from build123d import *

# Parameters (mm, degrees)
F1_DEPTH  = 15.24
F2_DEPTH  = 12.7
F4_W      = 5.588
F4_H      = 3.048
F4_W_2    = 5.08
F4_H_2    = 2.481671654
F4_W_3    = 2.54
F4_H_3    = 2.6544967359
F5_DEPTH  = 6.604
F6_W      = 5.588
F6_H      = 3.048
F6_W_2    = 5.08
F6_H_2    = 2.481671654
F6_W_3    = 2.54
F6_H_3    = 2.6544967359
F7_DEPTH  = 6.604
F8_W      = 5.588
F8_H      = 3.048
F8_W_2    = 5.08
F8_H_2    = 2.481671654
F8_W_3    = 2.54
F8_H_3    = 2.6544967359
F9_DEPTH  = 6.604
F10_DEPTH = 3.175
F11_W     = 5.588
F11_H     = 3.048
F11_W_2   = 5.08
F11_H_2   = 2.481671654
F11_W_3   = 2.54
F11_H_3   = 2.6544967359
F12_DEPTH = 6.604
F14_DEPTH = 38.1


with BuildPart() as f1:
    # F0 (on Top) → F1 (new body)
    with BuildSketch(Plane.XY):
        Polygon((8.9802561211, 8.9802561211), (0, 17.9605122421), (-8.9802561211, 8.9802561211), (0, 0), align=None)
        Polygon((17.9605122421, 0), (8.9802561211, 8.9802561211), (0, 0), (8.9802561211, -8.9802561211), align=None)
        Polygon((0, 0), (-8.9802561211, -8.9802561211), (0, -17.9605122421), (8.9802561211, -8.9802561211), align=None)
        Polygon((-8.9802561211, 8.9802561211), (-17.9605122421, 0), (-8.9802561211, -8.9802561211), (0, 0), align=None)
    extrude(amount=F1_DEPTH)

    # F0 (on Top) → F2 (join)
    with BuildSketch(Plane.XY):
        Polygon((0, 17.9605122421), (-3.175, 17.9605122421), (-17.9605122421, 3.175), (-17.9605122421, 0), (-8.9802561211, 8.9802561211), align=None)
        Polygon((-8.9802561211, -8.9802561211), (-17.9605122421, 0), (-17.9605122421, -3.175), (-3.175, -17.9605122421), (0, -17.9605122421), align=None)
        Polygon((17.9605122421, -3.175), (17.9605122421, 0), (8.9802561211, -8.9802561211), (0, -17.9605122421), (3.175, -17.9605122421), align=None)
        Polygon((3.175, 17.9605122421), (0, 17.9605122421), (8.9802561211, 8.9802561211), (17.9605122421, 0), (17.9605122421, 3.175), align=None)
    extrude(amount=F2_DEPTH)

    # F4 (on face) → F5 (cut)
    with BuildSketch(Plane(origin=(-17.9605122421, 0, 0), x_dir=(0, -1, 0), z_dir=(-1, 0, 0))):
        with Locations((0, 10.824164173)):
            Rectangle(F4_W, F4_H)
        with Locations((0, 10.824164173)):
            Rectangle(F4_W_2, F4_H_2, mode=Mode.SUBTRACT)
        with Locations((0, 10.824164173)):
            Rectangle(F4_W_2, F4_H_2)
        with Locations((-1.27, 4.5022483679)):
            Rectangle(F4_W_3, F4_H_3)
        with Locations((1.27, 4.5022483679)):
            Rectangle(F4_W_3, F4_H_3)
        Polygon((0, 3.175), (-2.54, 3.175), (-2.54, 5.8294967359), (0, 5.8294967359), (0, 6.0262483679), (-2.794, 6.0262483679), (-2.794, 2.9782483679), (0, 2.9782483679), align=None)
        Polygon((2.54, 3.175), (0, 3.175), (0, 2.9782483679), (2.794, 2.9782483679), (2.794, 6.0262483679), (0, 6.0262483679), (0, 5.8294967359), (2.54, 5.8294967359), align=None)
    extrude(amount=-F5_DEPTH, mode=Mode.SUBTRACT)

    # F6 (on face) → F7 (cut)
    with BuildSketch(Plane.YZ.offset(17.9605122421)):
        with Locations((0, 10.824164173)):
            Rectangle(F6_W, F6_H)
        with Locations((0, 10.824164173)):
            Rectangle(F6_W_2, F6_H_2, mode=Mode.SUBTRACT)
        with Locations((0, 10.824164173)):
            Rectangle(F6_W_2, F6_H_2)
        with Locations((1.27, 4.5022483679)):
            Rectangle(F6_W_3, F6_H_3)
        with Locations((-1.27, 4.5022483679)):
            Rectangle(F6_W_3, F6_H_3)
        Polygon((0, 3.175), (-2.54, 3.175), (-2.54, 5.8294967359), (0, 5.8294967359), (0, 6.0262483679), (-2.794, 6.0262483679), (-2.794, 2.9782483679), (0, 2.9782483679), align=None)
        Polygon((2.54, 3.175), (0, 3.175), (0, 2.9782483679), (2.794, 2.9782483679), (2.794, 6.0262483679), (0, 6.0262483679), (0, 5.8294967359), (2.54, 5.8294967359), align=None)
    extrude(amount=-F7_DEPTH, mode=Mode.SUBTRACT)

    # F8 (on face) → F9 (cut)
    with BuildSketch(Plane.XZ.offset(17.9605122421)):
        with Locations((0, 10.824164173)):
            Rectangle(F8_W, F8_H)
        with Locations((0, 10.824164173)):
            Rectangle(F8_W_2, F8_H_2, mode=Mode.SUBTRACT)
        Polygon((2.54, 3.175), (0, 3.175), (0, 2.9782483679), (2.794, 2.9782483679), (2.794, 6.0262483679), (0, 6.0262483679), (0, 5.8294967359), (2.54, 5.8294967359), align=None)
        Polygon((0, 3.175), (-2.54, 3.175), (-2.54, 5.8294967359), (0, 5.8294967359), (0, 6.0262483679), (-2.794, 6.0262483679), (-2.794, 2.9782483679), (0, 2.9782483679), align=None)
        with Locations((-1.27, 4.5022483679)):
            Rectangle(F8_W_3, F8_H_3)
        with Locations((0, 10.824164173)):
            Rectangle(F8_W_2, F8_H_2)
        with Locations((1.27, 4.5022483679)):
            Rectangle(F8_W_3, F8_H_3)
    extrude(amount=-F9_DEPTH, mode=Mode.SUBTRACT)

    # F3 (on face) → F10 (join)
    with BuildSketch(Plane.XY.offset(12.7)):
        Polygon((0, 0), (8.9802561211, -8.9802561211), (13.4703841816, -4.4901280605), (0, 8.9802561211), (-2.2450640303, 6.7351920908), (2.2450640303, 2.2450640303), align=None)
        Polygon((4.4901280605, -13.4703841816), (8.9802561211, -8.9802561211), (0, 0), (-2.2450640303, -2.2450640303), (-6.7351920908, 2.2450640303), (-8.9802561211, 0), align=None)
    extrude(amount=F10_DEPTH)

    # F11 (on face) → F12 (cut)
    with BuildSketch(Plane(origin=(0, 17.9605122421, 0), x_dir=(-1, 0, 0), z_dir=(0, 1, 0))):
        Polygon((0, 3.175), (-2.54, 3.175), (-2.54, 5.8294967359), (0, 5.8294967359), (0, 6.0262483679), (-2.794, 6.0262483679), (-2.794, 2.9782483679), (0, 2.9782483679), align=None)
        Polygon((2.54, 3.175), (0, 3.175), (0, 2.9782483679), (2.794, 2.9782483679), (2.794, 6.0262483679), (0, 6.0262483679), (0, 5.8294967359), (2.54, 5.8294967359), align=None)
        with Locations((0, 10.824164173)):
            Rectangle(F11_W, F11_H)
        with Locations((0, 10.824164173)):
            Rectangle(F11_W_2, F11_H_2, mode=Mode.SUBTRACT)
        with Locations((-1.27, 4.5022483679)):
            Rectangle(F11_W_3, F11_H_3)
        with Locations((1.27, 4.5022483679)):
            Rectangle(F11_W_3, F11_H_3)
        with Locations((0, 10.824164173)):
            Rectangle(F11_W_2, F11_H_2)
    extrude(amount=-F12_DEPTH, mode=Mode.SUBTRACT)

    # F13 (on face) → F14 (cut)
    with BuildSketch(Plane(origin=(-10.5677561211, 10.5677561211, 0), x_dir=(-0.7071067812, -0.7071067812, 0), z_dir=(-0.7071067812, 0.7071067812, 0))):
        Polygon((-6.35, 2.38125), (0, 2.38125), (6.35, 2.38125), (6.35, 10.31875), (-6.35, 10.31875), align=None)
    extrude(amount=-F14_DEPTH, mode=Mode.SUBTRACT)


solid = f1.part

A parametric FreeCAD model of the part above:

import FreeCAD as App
import Part
import Sketcher

V = App.Vector
Q = App.Units.Quantity

doc = App.newDocument("Part")
params = doc.addObject("Spreadsheet::Sheet", "Params")
for row, (alias, value) in enumerate([
    ("sketch1_length", "0.5 in"),
    ("pad1_length", "0.6 in"),
    ("sketch2_length", "0.5 in"),
    ("sketch2_width", "0.125 in"),
    ("pad2_length", "0.5 in"),
    ("sketch3_width", "0.22 in"),
    ("sketch3_height", "0.12 in"),
    ("pocket1_length", "0.26 in"),
    ("sketch4_width", "0.22 in"),
    ("sketch4_height", "0.12 in"),
    ("pocket2_length", "0.26 in"),
    ("sketch5_width", "0.22 in"),
    ("sketch5_height", "0.12 in"),
    ("pocket3_length", "0.26 in"),
    ("sketch6_length", "0.25 in"),
    ("sketch6_length2", "0.75 in"),
    ("pad3_length", "0.125 in"),
    ("sketch7_width", "0.22 in"),
    ("sketch7_height", "0.12 in"),
    ("pocket4_length", "0.26 in"),
    ("sketch8_width", "0.5 in"),
    ("sketch8_height", "0.3125 in"),
    ("pocket5_length", "1.5 in"),
], start=1):
    params.set(f"A{row}", alias)
    params.set(f"B{row}", "=" + value)
    params.setAlias(f"B{row}", alias)

body = doc.addObject("PartDesign::Body", "Body")

sketch1 = doc.addObject("Sketcher::SketchObject", "Sketch")
body.addObject(sketch1)
sketch1.AttachmentSupport = (doc.XY_Plane, [""])
sketch1.MapMode = "FlatFace"
sketch1.addGeometry([
    Part.LineSegment(V(9, 9, 0), V(0, 18, 0)),
    Part.LineSegment(V(0, 18, 0), V(-9, 9, 0)),
    Part.LineSegment(V(-9, 9, 0), V(-18, 0, 0)),
    Part.LineSegment(V(-18, 0, 0), V(-9, -9, 0)),
    Part.LineSegment(V(-9, -9, 0), V(0, -18, 0)),
    Part.LineSegment(V(0, -18, 0), V(9, -9, 0)),
    Part.LineSegment(V(9, -9, 0), V(18, 0, 0)),
    Part.LineSegment(V(18, 0, 0), V(9, 9, 0)),
], False)
sketch1.addConstraint([
    Sketcher.Constraint("Coincident", 0, 2, 1, 1),
    Sketcher.Constraint("Coincident", 1, 2, 2, 1),
    Sketcher.Constraint("Coincident", 2, 2, 3, 1),
    Sketcher.Constraint("Coincident", 3, 2, 4, 1),
    Sketcher.Constraint("Coincident", 4, 2, 5, 1),
    Sketcher.Constraint("Coincident", 5, 2, 6, 1),
    Sketcher.Constraint("Coincident", 6, 2, 7, 1),
    Sketcher.Constraint("Coincident", 7, 2, 0, 1),
    Sketcher.Constraint("Symmetric", 0, 2, 4, 2, -1, 1),
    Sketcher.Constraint("Symmetric", 1, 2, 5, 2, -1, 1),
    Sketcher.Constraint("Symmetric", 2, 2, 6, 2, -1, 1),
    Sketcher.Constraint("Symmetric", 3, 2, 7, 2, -1, 1),
    Sketcher.Constraint("Symmetric", 3, 2, 5, 2, -2),
    Sketcher.Constraint("PointOnObject", 0, 2, -2),
    Sketcher.Constraint("PointOnObject", 2, 2, -1),
    Sketcher.Constraint("Perpendicular", 0, 1),
    Sketcher.Constraint("Parallel", 1, 2),
    Sketcher.Constraint("Equal", 1, 2),
    Sketcher.Constraint("Distance", 0, Q("0.5 in")),
])
sketch1.setExpression("Constraints[18]", "Params.sketch1_length")
pad1 = doc.addObject("PartDesign::Pad", "Pad")
body.addObject(pad1)
pad1.Profile = sketch1
pad1.setExpression("Length", "Params.pad1_length")

sketch2 = doc.addObject("Sketcher::SketchObject", "Sketch001")
body.addObject(sketch2)
sketch2.AttachmentSupport = (doc.XY_Plane, [""])
sketch2.MapMode = "FlatFace"
sketch2.addGeometry([
    Part.LineSegment(V(0, 18, 0), V(-3.2, 18, 0)),
    Part.LineSegment(V(-3.2, 18, 0), V(-18, 3.2, 0)),
    Part.LineSegment(V(-18, 3.2, 0), V(-18, 0, 0)),
    Part.LineSegment(V(-18, 0, 0), V(-9, 9, 0)),
    Part.LineSegment(V(-9, 9, 0), V(0, 18, 0)),
    Part.LineSegment(V(-9, -9, 0), V(-18, 0, 0)),
    Part.LineSegment(V(-18, 0, 0), V(-18, -3.2, 0)),
    Part.LineSegment(V(-18, -3.2, 0), V(-3.2, -18, 0)),
    Part.LineSegment(V(-3.2, -18, 0), V(0, -18, 0)),
    Part.LineSegment(V(0, -18, 0), V(-9, -9, 0)),
    Part.LineSegment(V(18, -3.2, 0), V(18, 0, 0)),
    Part.LineSegment(V(18, 0, 0), V(9, -9, 0)),
    Part.LineSegment(V(9, -9, 0), V(0, -18, 0)),
    Part.LineSegment(V(0, -18, 0), V(3.2, -18, 0)),
    Part.LineSegment(V(3.2, -18, 0), V(18, -3.2, 0)),
    Part.LineSegment(V(3.2, 18, 0), V(0, 18, 0)),
    Part.LineSegment(V(0, 18, 0), V(9, 9, 0)),
    Part.LineSegment(V(9, 9, 0), V(18, 0, 0)),
    Part.LineSegment(V(18, 0, 0), V(18, 3.2, 0)),
    Part.LineSegment(V(18, 3.2, 0), V(3.2, 18, 0)),
], False)
sketch2.addConstraint([
    Sketcher.Constraint("Coincident", 0, 2, 1, 1),
    Sketcher.Constraint("Coincident", 1, 2, 2, 1),
    Sketcher.Constraint("Coincident", 2, 2, 3, 1),
    Sketcher.Constraint("Coincident", 3, 2, 4, 1),
    Sketcher.Constraint("Coincident", 4, 2, 0, 1),
    Sketcher.Constraint("Coincident", 5, 2, 6, 1),
    Sketcher.Constraint("Coincident", 6, 2, 7, 1),
    Sketcher.Constraint("Coincident", 7, 2, 8, 1),
    Sketcher.Constraint("Coincident", 8, 2, 9, 1),
    Sketcher.Constraint("Coincident", 9, 2, 5, 1),
    Sketcher.Constraint("Coincident", 10, 2, 11, 1),
    Sketcher.Constraint("Coincident", 11, 2, 12, 1),
    Sketcher.Constraint("Coincident", 12, 2, 13, 1),
    Sketcher.Constraint("Coincident", 13, 2, 14, 1),
    Sketcher.Constraint("Coincident", 14, 2, 10, 1),
    Sketcher.Constraint("Coincident", 15, 2, 16, 1),
    Sketcher.Constraint("Coincident", 16, 2, 17, 1),
    Sketcher.Constraint("Coincident", 17, 2, 18, 1),
    Sketcher.Constraint("Coincident", 18, 2, 19, 1),
    Sketcher.Constraint("Coincident", 19, 2, 15, 1),
    Sketcher.Constraint("Horizontal", 0),
    Sketcher.Constraint("Vertical", 2),
    Sketcher.Constraint("Vertical", 6),
    Sketcher.Constraint("Horizontal", 8),
    Sketcher.Constraint("Vertical", 10),
    Sketcher.Constraint("Horizontal", 13),
    Sketcher.Constraint("Horizontal", 15),
    Sketcher.Constraint("Vertical", 18),
    Sketcher.Constraint("Coincident", 5, 2, 2, 2),
    Sketcher.Constraint("Coincident", 12, 2, 8, 2),
    Sketcher.Constraint("Coincident", 15, 2, 4, 2),
    Sketcher.Constraint("Coincident", 17, 2, 10, 2),
    Sketcher.Constraint("Symmetric", 4, 2, 8, 2, -1, 1),
    Sketcher.Constraint("Symmetric", 2, 2, 10, 2, -1, 1),
    Sketcher.Constraint("Symmetric", 3, 2, 11, 2, -1, 1),
    Sketcher.Constraint("Symmetric", 9, 2, 16, 2, -1, 1),
    Sketcher.Constraint("Symmetric", 9, 2, 11, 2, -2),
    Sketcher.Constraint("PointOnObject", 2, 2, -1),
    Sketcher.Constraint("PointOnObject", 4, 2, -2),
    Sketcher.Constraint("Parallel", 1, 3),
    Sketcher.Constraint("Parallel", 3, 4),
    Sketcher.Constraint("Perpendicular", 4, 5),
    Sketcher.Constraint("Parallel", 5, 7),
    Sketcher.Constraint("Parallel", 12, 14),
    Sketcher.Constraint("Parallel", 17, 19),
    Sketcher.Constraint("Horizontal", 6, 2, 14, 2),
    Sketcher.Constraint("Horizontal", 1, 2, 18, 2),
    Sketcher.Constraint("Vertical", 0, 2, 7, 2),
    Sketcher.Constraint("Equal", 3, 4),
    Sketcher.Constraint("Distance", 3, Q("0.5 in")),
    Sketcher.Constraint("DistanceX", 0, 2, 0, 1, Q("0.125 in")),
])
sketch2.setExpression("Constraints[49]", "Params.sketch2_length")
sketch2.setExpression("Constraints[50]", "Params.sketch2_width")
pad2 = doc.addObject("PartDesign::Pad", "Pad001")
body.addObject(pad2)
pad2.Profile = sketch2
pad2.setExpression("Length", "Params.pad2_length")

sketch3 = doc.addObject("Sketcher::SketchObject", "Sketch002")
body.addObject(sketch3)
sketch3.AttachmentSupport = (doc.YZ_Plane, [""])
sketch3.MapMode = "FlatFace"
sketch3.AttachmentOffset = App.Placement(V(0, 0, -17.960512), App.Rotation())
sketch3.addGeometry([
    Part.LineSegment(V(2.8, 12.3, 0), V(2.8, 9.3, 0)),
    Part.LineSegment(V(2.8, 9.3, 0), V(-2.8, 9.3, 0)),
    Part.LineSegment(V(-2.8, 9.3, 0), V(-2.8, 12.3, 0)),
    Part.LineSegment(V(-2.8, 12.3, 0), V(2.8, 12.3, 0)),
    Part.LineSegment(V(2.8, 6, 0), V(2.8, 3, 0)),
    Part.LineSegment(V(2.8, 3, 0), V(-2.8, 3, 0)),
    Part.LineSegment(V(-2.8, 3, 0), V(-2.8, 6, 0)),
    Part.LineSegment(V(-2.8, 6, 0), V(2.8, 6, 0)),
], False)
sketch3.addConstraint([
    Sketcher.Constraint("Coincident", 0, 2, 1, 1),
    Sketcher.Constraint("Coincident", 1, 2, 2, 1),
    Sketcher.Constraint("Coincident", 2, 2, 3, 1),
    Sketcher.Constraint("Coincident", 3, 2, 0, 1),
    Sketcher.Constraint("Coincident", 4, 2, 5, 1),
    Sketcher.Constraint("Coincident", 5, 2, 6, 1),
    Sketcher.Constraint("Coincident", 6, 2, 7, 1),
    Sketcher.Constraint("Coincident", 7, 2, 4, 1),
    Sketcher.Constraint("Vertical", 0),
    Sketcher.Constraint("Horizontal", 1),
    Sketcher.Constraint("Vertical", 2),
    Sketcher.Constraint("Horizontal", 3),
    Sketcher.Constraint("Vertical", 4),
    Sketcher.Constraint("Horizontal", 5),
    Sketcher.Constraint("Vertical", 6),
    Sketcher.Constraint("Horizontal", 7),
    Sketcher.Constraint("Vertical", 3, 2, 4, 2),
    Sketcher.Constraint("Vertical", 2, 2, 5, 2),
    Sketcher.Constraint("Equal", 2, 4),
    Sketcher.Constraint("DistanceX", 1, 2, 1, 1, Q("0.22 in")),
    Sketcher.Constraint("DistanceY", 0, 2, 0, 1, Q("0.12 in")),
    Sketcher.Constraint("DistanceX", -1, 1, 0, 2, Q("0.11 in")),
    Sketcher.Constraint("DistanceY", -1, 1, 4, 2, Q("2.978248 mm")),
    Sketcher.Constraint("DistanceY", -1, 1, 0, 2, Q("9.300164 mm")),
])
sketch3.setExpression("Constraints[19]", "Params.sketch3_width")
sketch3.setExpression("Constraints[20]", "Params.sketch3_height")
pocket1 = doc.addObject("PartDesign::Pocket", "Pocket")
body.addObject(pocket1)
pocket1.Profile = sketch3
pocket1.setExpression("Length", "Params.pocket1_length")
pocket1.Reversed = True

sketch4 = doc.addObject("Sketcher::SketchObject", "Sketch003")
body.addObject(sketch4)
sketch4.AttachmentSupport = (doc.YZ_Plane, [""])
sketch4.MapMode = "FlatFace"
sketch4.AttachmentOffset = App.Placement(V(0, 0, 17.960512), App.Rotation())
sketch4.addGeometry([
    Part.LineSegment(V(-2.8, 12.3, 0), V(-2.8, 9.3, 0)),
    Part.LineSegment(V(-2.8, 9.3, 0), V(2.8, 9.3, 0)),
    Part.LineSegment(V(2.8, 9.3, 0), V(2.8, 12.3, 0)),
    Part.LineSegment(V(2.8, 12.3, 0), V(-2.8, 12.3, 0)),
    Part.LineSegment(V(-2.8, 6, 0), V(-2.8, 3, 0)),
    Part.LineSegment(V(-2.8, 3, 0), V(2.8, 3, 0)),
    Part.LineSegment(V(2.8, 3, 0), V(2.8, 6, 0)),
    Part.LineSegment(V(2.8, 6, 0), V(-2.8, 6, 0)),
], False)
sketch4.addConstraint([
    Sketcher.Constraint("Coincident", 0, 2, 1, 1),
    Sketcher.Constraint("Coincident", 1, 2, 2, 1),
    Sketcher.Constraint("Coincident", 2, 2, 3, 1),
    Sketcher.Constraint("Coincident", 3, 2, 0, 1),
    Sketcher.Constraint("Coincident", 4, 2, 5, 1),
    Sketcher.Constraint("Coincident", 5, 2, 6, 1),
    Sketcher.Constraint("Coincident", 6, 2, 7, 1),
    Sketcher.Constraint("Coincident", 7, 2, 4, 1),
    Sketcher.Constraint("Vertical", 0),
    Sketcher.Constraint("Horizontal", 1),
    Sketcher.Constraint("Vertical", 2),
    Sketcher.Constraint("Horizontal", 3),
    Sketcher.Constraint("Vertical", 4),
    Sketcher.Constraint("Horizontal", 5),
    Sketcher.Constraint("Vertical", 6),
    Sketcher.Constraint("Horizontal", 7),
    Sketcher.Constraint("Vertical", 3, 2, 4, 2),
    Sketcher.Constraint("Vertical", 2, 2, 5, 2),
    Sketcher.Constraint("Equal", 2, 4),
    Sketcher.Constraint("DistanceX", 1, 1, 1, 2, Q("0.22 in")),
    Sketcher.Constraint("DistanceY", 0, 2, 0, 1, Q("0.12 in")),
    Sketcher.Constraint("DistanceX", 0, 2, -1, 1, Q("0.11 in")),
    Sketcher.Constraint("DistanceY", -1, 1, 4, 2, Q("2.978248 mm")),
    Sketcher.Constraint("DistanceY", -1, 1, 0, 2, Q("9.300164 mm")),
])
sketch4.setExpression("Constraints[19]", "Params.sketch4_width")
sketch4.setExpression("Constraints[20]", "Params.sketch4_height")
pocket2 = doc.addObject("PartDesign::Pocket", "Pocket001")
body.addObject(pocket2)
pocket2.Profile = sketch4
pocket2.setExpression("Length", "Params.pocket2_length")

sketch5 = doc.addObject("Sketcher::SketchObject", "Sketch004")
body.addObject(sketch5)
sketch5.AttachmentSupport = (doc.XZ_Plane, [""])
sketch5.MapMode = "FlatFace"
sketch5.AttachmentOffset = App.Placement(V(0, 0, 17.960512), App.Rotation())
sketch5.addGeometry([
    Part.LineSegment(V(-2.8, 12.3, 0), V(-2.8, 9.3, 0)),
    Part.LineSegment(V(-2.8, 9.3, 0), V(2.8, 9.3, 0)),
    Part.LineSegment(V(2.8, 9.3, 0), V(2.8, 12.3, 0)),
    Part.LineSegment(V(2.8, 12.3, 0), V(-2.8, 12.3, 0)),
    Part.LineSegment(V(2.8, 3, 0), V(2.8, 6, 0)),
    Part.LineSegment(V(2.8, 6, 0), V(-2.8, 6, 0)),
    Part.LineSegment(V(-2.8, 6, 0), V(-2.8, 3, 0)),
    Part.LineSegment(V(-2.8, 3, 0), V(2.8, 3, 0)),
], False)
sketch5.addConstraint([
    Sketcher.Constraint("Coincident", 0, 2, 1, 1),
    Sketcher.Constraint("Coincident", 1, 2, 2, 1),
    Sketcher.Constraint("Coincident", 2, 2, 3, 1),
    Sketcher.Constraint("Coincident", 3, 2, 0, 1),
    Sketcher.Constraint("Coincident", 4, 2, 5, 1),
    Sketcher.Constraint("Coincident", 5, 2, 6, 1),
    Sketcher.Constraint("Coincident", 6, 2, 7, 1),
    Sketcher.Constraint("Coincident", 7, 2, 4, 1),
    Sketcher.Constraint("Vertical", 0),
    Sketcher.Constraint("Horizontal", 1),
    Sketcher.Constraint("Vertical", 2),
    Sketcher.Constraint("Horizontal", 3),
    Sketcher.Constraint("Vertical", 4),
    Sketcher.Constraint("Horizontal", 5),
    Sketcher.Constraint("Vertical", 6),
    Sketcher.Constraint("Horizontal", 7),
    Sketcher.Constraint("Vertical", 2, 2, 4, 2),
    Sketcher.Constraint("Vertical", 3, 2, 5, 2),
    Sketcher.Constraint("Equal", 2, 4),
    Sketcher.Constraint("DistanceX", 1, 1, 1, 2, Q("0.22 in")),
    Sketcher.Constraint("DistanceY", 0, 2, 0, 1, Q("0.12 in")),
    Sketcher.Constraint("DistanceX", 0, 2, -1, 1, Q("0.11 in")),
    Sketcher.Constraint("DistanceY", -1, 1, 4, 2, Q("6.026248 mm")),
    Sketcher.Constraint("DistanceY", -1, 1, 0, 2, Q("9.300164 mm")),
])
sketch5.setExpression("Constraints[19]", "Params.sketch5_width")
sketch5.setExpression("Constraints[20]", "Params.sketch5_height")
pocket3 = doc.addObject("PartDesign::Pocket", "Pocket002")
body.addObject(pocket3)
pocket3.Profile = sketch5
pocket3.setExpression("Length", "Params.pocket3_length")

sketch6 = doc.addObject("Sketcher::SketchObject", "Sketch005")
body.addObject(sketch6)
sketch6.AttachmentSupport = (doc.XY_Plane, [""])
sketch6.MapMode = "FlatFace"
sketch6.AttachmentOffset = App.Placement(V(0, 0, 0.5 * 25.4), App.Rotation())
sketch6.addGeometry([
    Part.LineSegment(V(9, -9, 0), V(13.5, -4.5, 0)),
    Part.LineSegment(V(13.5, -4.5, 0), V(0, 9, 0)),
    Part.LineSegment(V(0, 9, 0), V(-2.2, 6.7, 0)),
    Part.LineSegment(V(-2.2, 6.7, 0), V(2.2, 2.2, 0)),
    Part.LineSegment(V(2.2, 2.2, 0), V(-2.2, -2.2, 0)),
    Part.LineSegment(V(-2.2, -2.2, 0), V(-6.7, 2.2, 0)),
    Part.LineSegment(V(-6.7, 2.2, 0), V(-9, 0, 0)),
    Part.LineSegment(V(-9, 0, 0), V(4.5, -13.5, 0)),
    Part.LineSegment(V(4.5, -13.5, 0), V(9, -9, 0)),
], False)
sketch6.addConstraint([
    Sketcher.Constraint("Coincident", 0, 2, 1, 1),
    Sketcher.Constraint("Coincident", 1, 2, 2, 1),
    Sketcher.Constraint("Coincident", 2, 2, 3, 1),
    Sketcher.Constraint("Coincident", 3, 2, 4, 1),
    Sketcher.Constraint("Coincident", 4, 2, 5, 1),
    Sketcher.Constraint("Coincident", 5, 2, 6, 1),
    Sketcher.Constraint("Coincident", 6, 2, 7, 1),
    Sketcher.Constraint("Coincident", 7, 2, 8, 1),
    Sketcher.Constraint("Coincident", 8, 2, 0, 1),
    Sketcher.Constraint("Symmetric", 3, 2, 4, 2, -1, 1),
    Sketcher.Constraint("PointOnObject", 1, 2, -2),
    Sketcher.Constraint("PointOnObject", 6, 2, -1),
    Sketcher.Constraint("Perpendicular", 0, 1),
    Sketcher.Constraint("Perpendicular", 1, 2),
    Sketcher.Constraint("Perpendicular", 2, 3),
    Sketcher.Constraint("Perpendicular", 3, 4),
    Sketcher.Constraint("Perpendicular", 4, 5),
    Sketcher.Constraint("Perpendicular", 5, 6),
    Sketcher.Constraint("Perpendicular", 6, 7),
    Sketcher.Constraint("Perpendicular", 7, 8),
    Sketcher.Constraint("Horizontal", 3, 2, 5, 2),
    Sketcher.Constraint("Vertical", 2, 2, 4, 2),
    Sketcher.Constraint("Equal", 0, 3),
    Sketcher.Constraint("Equal", 3, 4),
    Sketcher.Constraint("Distance", 0, Q("0.25 in")),
    Sketcher.Constraint("Distance", 1, Q("0.75 in")),
])
sketch6.setExpression("Constraints[24]", "Params.sketch6_length")
sketch6.setExpression("Constraints[25]", "Params.sketch6_length2")
pad3 = doc.addObject("PartDesign::Pad", "Pad002")
body.addObject(pad3)
pad3.Profile = sketch6
pad3.setExpression("Length", "Params.pad3_length")

sketch7 = doc.addObject("Sketcher::SketchObject", "Sketch006")
body.addObject(sketch7)
sketch7.AttachmentSupport = (doc.XZ_Plane, [""])
sketch7.MapMode = "FlatFace"
sketch7.AttachmentOffset = App.Placement(V(0, 0, -17.960512), App.Rotation())
sketch7.addGeometry([
    Part.LineSegment(V(2.8, 6, 0), V(2.8, 3, 0)),
    Part.LineSegment(V(2.8, 3, 0), V(-2.8, 3, 0)),
    Part.LineSegment(V(-2.8, 3, 0), V(-2.8, 6, 0)),
    Part.LineSegment(V(-2.8, 6, 0), V(2.8, 6, 0)),
    Part.LineSegment(V(2.8, 12.3, 0), V(2.8, 9.3, 0)),
    Part.LineSegment(V(2.8, 9.3, 0), V(-2.8, 9.3, 0)),
    Part.LineSegment(V(-2.8, 9.3, 0), V(-2.8, 12.3, 0)),
    Part.LineSegment(V(-2.8, 12.3, 0), V(2.8, 12.3, 0)),
], False)
sketch7.addConstraint([
    Sketcher.Constraint("Coincident", 0, 2, 1, 1),
    Sketcher.Constraint("Coincident", 1, 2, 2, 1),
    Sketcher.Constraint("Coincident", 2, 2, 3, 1),
    Sketcher.Constraint("Coincident", 3, 2, 0, 1),
    Sketcher.Constraint("Coincident", 4, 2, 5, 1),
    Sketcher.Constraint("Coincident", 5, 2, 6, 1),
    Sketcher.Constraint("Coincident", 6, 2, 7, 1),
    Sketcher.Constraint("Coincident", 7, 2, 4, 1),
    Sketcher.Constraint("Vertical", 0),
    Sketcher.Constraint("Horizontal", 1),
    Sketcher.Constraint("Vertical", 2),
    Sketcher.Constraint("Horizontal", 3),
    Sketcher.Constraint("Vertical", 4),
    Sketcher.Constraint("Horizontal", 5),
    Sketcher.Constraint("Vertical", 6),
    Sketcher.Constraint("Horizontal", 7),
    Sketcher.Constraint("Vertical", 3, 2, 4, 2),
    Sketcher.Constraint("Vertical", 2, 2, 5, 2),
    Sketcher.Constraint("Equal", 2, 4),
    Sketcher.Constraint("DistanceX", 1, 2, 1, 1, Q("0.22 in")),
    Sketcher.Constraint("DistanceY", 0, 2, 0, 1, Q("0.12 in")),
    Sketcher.Constraint("DistanceX", -1, 1, 0, 2, Q("0.11 in")),
    Sketcher.Constraint("DistanceY", -1, 1, 0, 2, Q("2.978248 mm")),
    Sketcher.Constraint("DistanceY", -1, 1, 4, 2, Q("9.300164 mm")),
])
sketch7.setExpression("Constraints[19]", "Params.sketch7_width")
sketch7.setExpression("Constraints[20]", "Params.sketch7_height")
pocket4 = doc.addObject("PartDesign::Pocket", "Pocket003")
body.addObject(pocket4)
pocket4.Profile = sketch7
pocket4.setExpression("Length", "Params.pocket4_length")
pocket4.Reversed = True

sketch8 = doc.addObject("Sketcher::SketchObject", "Sketch007")
body.addObject(sketch8)
sketch8.Placement = App.Placement(V(-10.567756, 10.567756, 0), App.Rotation(V(-0.707106781, -0.707106781, 0), V(0, 0, 0.999999999), V(-0.707106781, 0.707106781, 0), "ZXY"))
sketch8.addGeometry([
    Part.LineSegment(V(-6, 2, 0), V(6, 2, 0)),
    Part.LineSegment(V(6, 2, 0), V(6, 10, 0)),
    Part.LineSegment(V(6, 10, 0), V(-6, 10, 0)),
    Part.LineSegment(V(-6, 10, 0), V(-6, 2, 0)),
], False)
sketch8.addConstraint([
    Sketcher.Constraint("Coincident", 0, 2, 1, 1),
    Sketcher.Constraint("Coincident", 1, 2, 2, 1),
    Sketcher.Constraint("Coincident", 2, 2, 3, 1),
    Sketcher.Constraint("Coincident", 3, 2, 0, 1),
    Sketcher.Constraint("Horizontal", 0),
    Sketcher.Constraint("Vertical", 1),
    Sketcher.Constraint("Horizontal", 2),
    Sketcher.Constraint("Vertical", 3),
    Sketcher.Constraint("DistanceX", 0, 1, 0, 2, Q("0.5 in")),
    Sketcher.Constraint("DistanceY", 1, 1, 1, 2, Q("0.3125 in")),
    Sketcher.Constraint("DistanceX", -1, 1, 0, 2, Q("0.25 in")),
    Sketcher.Constraint("DistanceY", -1, 1, 0, 2, Q("0.09375 in")),
])
sketch8.setExpression("Constraints[8]", "Params.sketch8_width")
sketch8.setExpression("Constraints[9]", "Params.sketch8_height")
pocket5 = doc.addObject("PartDesign::Pocket", "Pocket004")
body.addObject(pocket5)
pocket5.Profile = sketch8
pocket5.setExpression("Length", "Params.pocket5_length")

doc.recompute()
